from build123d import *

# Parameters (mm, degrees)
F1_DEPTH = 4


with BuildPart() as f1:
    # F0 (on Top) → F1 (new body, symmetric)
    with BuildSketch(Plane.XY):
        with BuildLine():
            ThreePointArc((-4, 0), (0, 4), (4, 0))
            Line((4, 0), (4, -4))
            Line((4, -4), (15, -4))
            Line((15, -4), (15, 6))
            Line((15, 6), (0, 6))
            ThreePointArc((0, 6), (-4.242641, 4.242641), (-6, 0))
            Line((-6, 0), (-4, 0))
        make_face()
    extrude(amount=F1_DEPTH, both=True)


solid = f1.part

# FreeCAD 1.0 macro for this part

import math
import FreeCAD as App
import Part
import Sketcher

doc = App.newDocument("Part")
body = doc.addObject("PartDesign::Body", "Body")

sketch1 = body.newObject("Sketcher::SketchObject", "Sketch")
sketch1.AttachmentSupport = (doc.getObject("XY_Plane"), [""])
sketch1.MapMode = "FlatFace"
sketch1.addGeometry([
    Part.ArcOfCircle(Part.Circle(App.Vector(0, 0, 0), App.Vector(0, 0, 1), 4), math.radians(0), math.radians(180)),
    Part.LineSegment(App.Vector(4, 0, 0), App.Vector(4, -4, 0)),
    Part.LineSegment(App.Vector(4, -4, 0), App.Vector(15, -4, 0)),
    Part.LineSegment(App.Vector(15, -4, 0), App.Vector(15, 6, 0)),
    Part.LineSegment(App.Vector(15, 6, 0), App.Vector(0, 6, 0)),
    Part.ArcOfCircle(Part.Circle(App.Vector(0, 0, 0), App.Vector(0, 0, 1), 6), math.radians(90), math.radians(180)),
    Part.LineSegment(App.Vector(-6, 0, 0), App.Vector(-4, 0, 0)),
], False)
sketch1.addConstraint([
    Sketcher.Constraint("Tangent", 0, 1, 1, 1),
    Sketcher.Constraint("Coincident", 1, 2, 2, 1),
    Sketcher.Constraint("Coincident", 2, 2, 3, 1),
    Sketcher.Constraint("Coincident", 3, 2, 4, 1),
    Sketcher.Constraint("Tangent", 4, 2, 5, 1),
    Sketcher.Constraint("Coincident", 5, 2, 6, 1),
    Sketcher.Constraint("Coincident", 6, 2, 0, 2),
    Sketcher.Constraint("Vertical", 1),
    Sketcher.Constraint("Horizontal", 2),
    Sketcher.Constraint("Vertical", 3),
    Sketcher.Constraint("Horizontal", 4),
    Sketcher.Constraint("Horizontal", 6),
    Sketcher.Constraint("Coincident", 0, 3, -1, 1),
    Sketcher.Constraint("Coincident", 5, 3, -1, 1),
    Sketcher.Constraint("PointOnObject", 5, 2, -1),
    Sketcher.Constraint("Radius", 0, 4.0),
    Sketcher.Constraint("Radius", 5, 5.999999),
    Sketcher.Constraint("DistanceX", 2, 1, 2, 2, 11.0),
    Sketcher.Constraint("DistanceY", 1, 2, 1, 1, 4.0),
])
pad1 = body.newObject("PartDesign::Pad", "Pad")
pad1.Profile = sketch1
pad1.Length = 8
pad1.Midplane = True

doc.recompute()
